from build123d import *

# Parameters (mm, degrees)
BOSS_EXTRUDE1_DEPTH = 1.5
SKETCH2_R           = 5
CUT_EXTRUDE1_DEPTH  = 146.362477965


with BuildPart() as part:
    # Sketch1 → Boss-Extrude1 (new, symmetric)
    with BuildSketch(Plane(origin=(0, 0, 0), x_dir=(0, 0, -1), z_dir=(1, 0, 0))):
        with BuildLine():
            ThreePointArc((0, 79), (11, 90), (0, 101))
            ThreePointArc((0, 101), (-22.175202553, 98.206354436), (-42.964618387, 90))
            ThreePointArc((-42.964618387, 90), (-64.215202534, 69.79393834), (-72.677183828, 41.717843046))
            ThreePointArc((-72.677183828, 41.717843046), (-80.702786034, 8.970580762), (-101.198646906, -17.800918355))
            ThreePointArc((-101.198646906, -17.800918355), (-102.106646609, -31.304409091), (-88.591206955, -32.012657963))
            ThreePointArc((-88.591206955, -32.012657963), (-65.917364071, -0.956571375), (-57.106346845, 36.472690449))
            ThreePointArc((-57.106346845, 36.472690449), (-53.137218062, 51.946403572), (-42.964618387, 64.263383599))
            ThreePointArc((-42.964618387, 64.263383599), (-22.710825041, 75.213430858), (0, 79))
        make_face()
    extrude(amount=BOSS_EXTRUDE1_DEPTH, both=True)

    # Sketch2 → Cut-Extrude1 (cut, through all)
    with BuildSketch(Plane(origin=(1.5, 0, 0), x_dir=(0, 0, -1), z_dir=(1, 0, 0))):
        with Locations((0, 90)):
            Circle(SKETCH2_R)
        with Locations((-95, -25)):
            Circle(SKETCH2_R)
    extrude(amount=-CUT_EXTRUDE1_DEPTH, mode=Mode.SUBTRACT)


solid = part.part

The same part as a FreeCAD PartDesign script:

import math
import FreeCAD as App
import Part
import Sketcher
Q = App.Units.Quantity

doc = App.newDocument("Part")
body = doc.addObject("PartDesign::Body", "Body")

# Sketch on YZ plane
sketch1 = body.newObject("Sketcher::SketchObject", "Sketch")
sketch1.AttachmentSupport = (doc.getObject("YZ_Plane"), [""])
sketch1.MapMode = "FlatFace"
sketch1.addGeometry([
    Part.ArcOfCircle(Part.Circle(App.Vector(90, 0, 0), App.Vector(0, 0, 1), 11), math.radians(180), math.radians(360)),  # 0
    Part.ArcOfCircle(Part.Circle(App.Vector(12, 0, 0), App.Vector(0, 0, 1), 89), math.radians(0), math.radians(29)),  # 1
    Part.ArcOfCircle(Part.Circle(App.Vector(40, 15, 0), App.Vector(0, 0, 1), 57), math.radians(29), math.radians(88)),  # 2
    Part.ArcOfCircle(Part.Circle(App.Vector(44, 155, 0), App.Vector(0, 0, 1), 82), math.radians(-139), math.radians(-92)),  # 3
    Part.ArcOfCircle(Part.Circle(App.Vector(-25, 95, 0), App.Vector(0, 0, 1), 10), math.radians(41), math.radians(222)),  # 4
    Part.ArcOfCircle(Part.Circle(App.Vector(40, 154, 0), App.Vector(0, 0, 1), 97), math.radians(-138), math.radians(-92)),  # 5
    Part.ArcOfCircle(Part.Circle(App.Vector(35, 20, 0), App.Vector(0, 0, 1), 37), math.radians(38), math.radians(88)),  # 6
    Part.ArcOfCircle(Part.Circle(App.Vector(9, 0, 0), App.Vector(0, 0, 1), 70), math.radians(0), math.radians(38)),  # 7
], False)
sketch1.addConstraint([
    Sketcher.Constraint("Tangent", 0, 2, 1, 1),
    Sketcher.Constraint("Tangent", 1, 2, 2, 1),
    Sketcher.Constraint("Tangent", 2, 2, 3, 2),
    Sketcher.Constraint("Tangent", 3, 1, 4, 1),
    Sketcher.Constraint("Tangent", 4, 2, 5, 1),
    Sketcher.Constraint("Tangent", 5, 2, 6, 2),
    Sketcher.Constraint("Tangent", 6, 1, 7, 2),
    Sketcher.Constraint("Tangent", 7, 1, 0, 1),
    Sketcher.Constraint("PointOnObject", 0, 3, -1),
    Sketcher.Constraint("PointOnObject", 1, 3, -1),
    Sketcher.Constraint("PointOnObject", 7, 3, -1),
    Sketcher.Constraint("Horizontal", 1, 2, 6, 1),
    Sketcher.Constraint("Vertical", 0, 3, 1, 2),
    Sketcher.Constraint("Radius", 0, Q("11 mm")),
    Sketcher.Constraint("Radius", 7, Q("70 mm")),
    Sketcher.Constraint("Radius", 4, Q("9.5 mm")),
    Sketcher.Constraint("DistanceX", -1, 1, 0, 3, Q("90 mm")),
    Sketcher.Constraint("DistanceX", 4, 3, -1, 1, Q("25 mm")),
    Sketcher.Constraint("DistanceY", -1, 1, 4, 3, Q("95 mm")),
    Sketcher.Constraint("Radius", 1, Q("89.407201 mm")),
    Sketcher.Constraint("Radius", 3, Q("82.208782 mm")),
    Sketcher.Constraint("Radius", 6, Q("36.662771 mm")),
    Sketcher.Constraint("Radius", 2, Q("57.263033 mm")),
    Sketcher.Constraint("Radius", 5, Q("96.907815 mm")),
])
pad1 = body.newObject("PartDesign::Pad", "Pad")
pad1.Profile = sketch1
pad1.Length = 3
pad1.Midplane = True

# Sketch on YZ plane
sketch2 = body.newObject("Sketcher::SketchObject", "Sketch001")
sketch2.AttachmentSupport = (doc.getObject("YZ_Plane"), [""])
sketch2.MapMode = "FlatFace"
sketch2.AttachmentOffset = App.Placement(App.Vector(0, 0, 1.5), App.Rotation())
sketch2.addGeometry([
    Part.Circle(App.Vector(90, 0, 0), App.Vector(0, 0, 1), 5),
    Part.Circle(App.Vector(-25, 95, 0), App.Vector(0, 0, 1), 5),
], False)
sketch2.addConstraint([
    Sketcher.Constraint("Equal", 0, 1),
    Sketcher.Constraint("PointOnObject", 0, 3, -1),
    Sketcher.Constraint("Diameter", 0, Q("10 mm")),
    Sketcher.Constraint("DistanceX", -1, 1, 0, 3, Q("90 mm")),
    Sketcher.Constraint("DistanceX", 1, 3, -1, 1, Q("25 mm")),
    Sketcher.Constraint("DistanceY", -1, 1, 1, 3, Q("95 mm")),
])
pocket1 = body.newObject("PartDesign::Pocket", "Pocket")
pocket1.Profile = sketch2
pocket1.Type = "ThroughAll"

doc.recompute()
